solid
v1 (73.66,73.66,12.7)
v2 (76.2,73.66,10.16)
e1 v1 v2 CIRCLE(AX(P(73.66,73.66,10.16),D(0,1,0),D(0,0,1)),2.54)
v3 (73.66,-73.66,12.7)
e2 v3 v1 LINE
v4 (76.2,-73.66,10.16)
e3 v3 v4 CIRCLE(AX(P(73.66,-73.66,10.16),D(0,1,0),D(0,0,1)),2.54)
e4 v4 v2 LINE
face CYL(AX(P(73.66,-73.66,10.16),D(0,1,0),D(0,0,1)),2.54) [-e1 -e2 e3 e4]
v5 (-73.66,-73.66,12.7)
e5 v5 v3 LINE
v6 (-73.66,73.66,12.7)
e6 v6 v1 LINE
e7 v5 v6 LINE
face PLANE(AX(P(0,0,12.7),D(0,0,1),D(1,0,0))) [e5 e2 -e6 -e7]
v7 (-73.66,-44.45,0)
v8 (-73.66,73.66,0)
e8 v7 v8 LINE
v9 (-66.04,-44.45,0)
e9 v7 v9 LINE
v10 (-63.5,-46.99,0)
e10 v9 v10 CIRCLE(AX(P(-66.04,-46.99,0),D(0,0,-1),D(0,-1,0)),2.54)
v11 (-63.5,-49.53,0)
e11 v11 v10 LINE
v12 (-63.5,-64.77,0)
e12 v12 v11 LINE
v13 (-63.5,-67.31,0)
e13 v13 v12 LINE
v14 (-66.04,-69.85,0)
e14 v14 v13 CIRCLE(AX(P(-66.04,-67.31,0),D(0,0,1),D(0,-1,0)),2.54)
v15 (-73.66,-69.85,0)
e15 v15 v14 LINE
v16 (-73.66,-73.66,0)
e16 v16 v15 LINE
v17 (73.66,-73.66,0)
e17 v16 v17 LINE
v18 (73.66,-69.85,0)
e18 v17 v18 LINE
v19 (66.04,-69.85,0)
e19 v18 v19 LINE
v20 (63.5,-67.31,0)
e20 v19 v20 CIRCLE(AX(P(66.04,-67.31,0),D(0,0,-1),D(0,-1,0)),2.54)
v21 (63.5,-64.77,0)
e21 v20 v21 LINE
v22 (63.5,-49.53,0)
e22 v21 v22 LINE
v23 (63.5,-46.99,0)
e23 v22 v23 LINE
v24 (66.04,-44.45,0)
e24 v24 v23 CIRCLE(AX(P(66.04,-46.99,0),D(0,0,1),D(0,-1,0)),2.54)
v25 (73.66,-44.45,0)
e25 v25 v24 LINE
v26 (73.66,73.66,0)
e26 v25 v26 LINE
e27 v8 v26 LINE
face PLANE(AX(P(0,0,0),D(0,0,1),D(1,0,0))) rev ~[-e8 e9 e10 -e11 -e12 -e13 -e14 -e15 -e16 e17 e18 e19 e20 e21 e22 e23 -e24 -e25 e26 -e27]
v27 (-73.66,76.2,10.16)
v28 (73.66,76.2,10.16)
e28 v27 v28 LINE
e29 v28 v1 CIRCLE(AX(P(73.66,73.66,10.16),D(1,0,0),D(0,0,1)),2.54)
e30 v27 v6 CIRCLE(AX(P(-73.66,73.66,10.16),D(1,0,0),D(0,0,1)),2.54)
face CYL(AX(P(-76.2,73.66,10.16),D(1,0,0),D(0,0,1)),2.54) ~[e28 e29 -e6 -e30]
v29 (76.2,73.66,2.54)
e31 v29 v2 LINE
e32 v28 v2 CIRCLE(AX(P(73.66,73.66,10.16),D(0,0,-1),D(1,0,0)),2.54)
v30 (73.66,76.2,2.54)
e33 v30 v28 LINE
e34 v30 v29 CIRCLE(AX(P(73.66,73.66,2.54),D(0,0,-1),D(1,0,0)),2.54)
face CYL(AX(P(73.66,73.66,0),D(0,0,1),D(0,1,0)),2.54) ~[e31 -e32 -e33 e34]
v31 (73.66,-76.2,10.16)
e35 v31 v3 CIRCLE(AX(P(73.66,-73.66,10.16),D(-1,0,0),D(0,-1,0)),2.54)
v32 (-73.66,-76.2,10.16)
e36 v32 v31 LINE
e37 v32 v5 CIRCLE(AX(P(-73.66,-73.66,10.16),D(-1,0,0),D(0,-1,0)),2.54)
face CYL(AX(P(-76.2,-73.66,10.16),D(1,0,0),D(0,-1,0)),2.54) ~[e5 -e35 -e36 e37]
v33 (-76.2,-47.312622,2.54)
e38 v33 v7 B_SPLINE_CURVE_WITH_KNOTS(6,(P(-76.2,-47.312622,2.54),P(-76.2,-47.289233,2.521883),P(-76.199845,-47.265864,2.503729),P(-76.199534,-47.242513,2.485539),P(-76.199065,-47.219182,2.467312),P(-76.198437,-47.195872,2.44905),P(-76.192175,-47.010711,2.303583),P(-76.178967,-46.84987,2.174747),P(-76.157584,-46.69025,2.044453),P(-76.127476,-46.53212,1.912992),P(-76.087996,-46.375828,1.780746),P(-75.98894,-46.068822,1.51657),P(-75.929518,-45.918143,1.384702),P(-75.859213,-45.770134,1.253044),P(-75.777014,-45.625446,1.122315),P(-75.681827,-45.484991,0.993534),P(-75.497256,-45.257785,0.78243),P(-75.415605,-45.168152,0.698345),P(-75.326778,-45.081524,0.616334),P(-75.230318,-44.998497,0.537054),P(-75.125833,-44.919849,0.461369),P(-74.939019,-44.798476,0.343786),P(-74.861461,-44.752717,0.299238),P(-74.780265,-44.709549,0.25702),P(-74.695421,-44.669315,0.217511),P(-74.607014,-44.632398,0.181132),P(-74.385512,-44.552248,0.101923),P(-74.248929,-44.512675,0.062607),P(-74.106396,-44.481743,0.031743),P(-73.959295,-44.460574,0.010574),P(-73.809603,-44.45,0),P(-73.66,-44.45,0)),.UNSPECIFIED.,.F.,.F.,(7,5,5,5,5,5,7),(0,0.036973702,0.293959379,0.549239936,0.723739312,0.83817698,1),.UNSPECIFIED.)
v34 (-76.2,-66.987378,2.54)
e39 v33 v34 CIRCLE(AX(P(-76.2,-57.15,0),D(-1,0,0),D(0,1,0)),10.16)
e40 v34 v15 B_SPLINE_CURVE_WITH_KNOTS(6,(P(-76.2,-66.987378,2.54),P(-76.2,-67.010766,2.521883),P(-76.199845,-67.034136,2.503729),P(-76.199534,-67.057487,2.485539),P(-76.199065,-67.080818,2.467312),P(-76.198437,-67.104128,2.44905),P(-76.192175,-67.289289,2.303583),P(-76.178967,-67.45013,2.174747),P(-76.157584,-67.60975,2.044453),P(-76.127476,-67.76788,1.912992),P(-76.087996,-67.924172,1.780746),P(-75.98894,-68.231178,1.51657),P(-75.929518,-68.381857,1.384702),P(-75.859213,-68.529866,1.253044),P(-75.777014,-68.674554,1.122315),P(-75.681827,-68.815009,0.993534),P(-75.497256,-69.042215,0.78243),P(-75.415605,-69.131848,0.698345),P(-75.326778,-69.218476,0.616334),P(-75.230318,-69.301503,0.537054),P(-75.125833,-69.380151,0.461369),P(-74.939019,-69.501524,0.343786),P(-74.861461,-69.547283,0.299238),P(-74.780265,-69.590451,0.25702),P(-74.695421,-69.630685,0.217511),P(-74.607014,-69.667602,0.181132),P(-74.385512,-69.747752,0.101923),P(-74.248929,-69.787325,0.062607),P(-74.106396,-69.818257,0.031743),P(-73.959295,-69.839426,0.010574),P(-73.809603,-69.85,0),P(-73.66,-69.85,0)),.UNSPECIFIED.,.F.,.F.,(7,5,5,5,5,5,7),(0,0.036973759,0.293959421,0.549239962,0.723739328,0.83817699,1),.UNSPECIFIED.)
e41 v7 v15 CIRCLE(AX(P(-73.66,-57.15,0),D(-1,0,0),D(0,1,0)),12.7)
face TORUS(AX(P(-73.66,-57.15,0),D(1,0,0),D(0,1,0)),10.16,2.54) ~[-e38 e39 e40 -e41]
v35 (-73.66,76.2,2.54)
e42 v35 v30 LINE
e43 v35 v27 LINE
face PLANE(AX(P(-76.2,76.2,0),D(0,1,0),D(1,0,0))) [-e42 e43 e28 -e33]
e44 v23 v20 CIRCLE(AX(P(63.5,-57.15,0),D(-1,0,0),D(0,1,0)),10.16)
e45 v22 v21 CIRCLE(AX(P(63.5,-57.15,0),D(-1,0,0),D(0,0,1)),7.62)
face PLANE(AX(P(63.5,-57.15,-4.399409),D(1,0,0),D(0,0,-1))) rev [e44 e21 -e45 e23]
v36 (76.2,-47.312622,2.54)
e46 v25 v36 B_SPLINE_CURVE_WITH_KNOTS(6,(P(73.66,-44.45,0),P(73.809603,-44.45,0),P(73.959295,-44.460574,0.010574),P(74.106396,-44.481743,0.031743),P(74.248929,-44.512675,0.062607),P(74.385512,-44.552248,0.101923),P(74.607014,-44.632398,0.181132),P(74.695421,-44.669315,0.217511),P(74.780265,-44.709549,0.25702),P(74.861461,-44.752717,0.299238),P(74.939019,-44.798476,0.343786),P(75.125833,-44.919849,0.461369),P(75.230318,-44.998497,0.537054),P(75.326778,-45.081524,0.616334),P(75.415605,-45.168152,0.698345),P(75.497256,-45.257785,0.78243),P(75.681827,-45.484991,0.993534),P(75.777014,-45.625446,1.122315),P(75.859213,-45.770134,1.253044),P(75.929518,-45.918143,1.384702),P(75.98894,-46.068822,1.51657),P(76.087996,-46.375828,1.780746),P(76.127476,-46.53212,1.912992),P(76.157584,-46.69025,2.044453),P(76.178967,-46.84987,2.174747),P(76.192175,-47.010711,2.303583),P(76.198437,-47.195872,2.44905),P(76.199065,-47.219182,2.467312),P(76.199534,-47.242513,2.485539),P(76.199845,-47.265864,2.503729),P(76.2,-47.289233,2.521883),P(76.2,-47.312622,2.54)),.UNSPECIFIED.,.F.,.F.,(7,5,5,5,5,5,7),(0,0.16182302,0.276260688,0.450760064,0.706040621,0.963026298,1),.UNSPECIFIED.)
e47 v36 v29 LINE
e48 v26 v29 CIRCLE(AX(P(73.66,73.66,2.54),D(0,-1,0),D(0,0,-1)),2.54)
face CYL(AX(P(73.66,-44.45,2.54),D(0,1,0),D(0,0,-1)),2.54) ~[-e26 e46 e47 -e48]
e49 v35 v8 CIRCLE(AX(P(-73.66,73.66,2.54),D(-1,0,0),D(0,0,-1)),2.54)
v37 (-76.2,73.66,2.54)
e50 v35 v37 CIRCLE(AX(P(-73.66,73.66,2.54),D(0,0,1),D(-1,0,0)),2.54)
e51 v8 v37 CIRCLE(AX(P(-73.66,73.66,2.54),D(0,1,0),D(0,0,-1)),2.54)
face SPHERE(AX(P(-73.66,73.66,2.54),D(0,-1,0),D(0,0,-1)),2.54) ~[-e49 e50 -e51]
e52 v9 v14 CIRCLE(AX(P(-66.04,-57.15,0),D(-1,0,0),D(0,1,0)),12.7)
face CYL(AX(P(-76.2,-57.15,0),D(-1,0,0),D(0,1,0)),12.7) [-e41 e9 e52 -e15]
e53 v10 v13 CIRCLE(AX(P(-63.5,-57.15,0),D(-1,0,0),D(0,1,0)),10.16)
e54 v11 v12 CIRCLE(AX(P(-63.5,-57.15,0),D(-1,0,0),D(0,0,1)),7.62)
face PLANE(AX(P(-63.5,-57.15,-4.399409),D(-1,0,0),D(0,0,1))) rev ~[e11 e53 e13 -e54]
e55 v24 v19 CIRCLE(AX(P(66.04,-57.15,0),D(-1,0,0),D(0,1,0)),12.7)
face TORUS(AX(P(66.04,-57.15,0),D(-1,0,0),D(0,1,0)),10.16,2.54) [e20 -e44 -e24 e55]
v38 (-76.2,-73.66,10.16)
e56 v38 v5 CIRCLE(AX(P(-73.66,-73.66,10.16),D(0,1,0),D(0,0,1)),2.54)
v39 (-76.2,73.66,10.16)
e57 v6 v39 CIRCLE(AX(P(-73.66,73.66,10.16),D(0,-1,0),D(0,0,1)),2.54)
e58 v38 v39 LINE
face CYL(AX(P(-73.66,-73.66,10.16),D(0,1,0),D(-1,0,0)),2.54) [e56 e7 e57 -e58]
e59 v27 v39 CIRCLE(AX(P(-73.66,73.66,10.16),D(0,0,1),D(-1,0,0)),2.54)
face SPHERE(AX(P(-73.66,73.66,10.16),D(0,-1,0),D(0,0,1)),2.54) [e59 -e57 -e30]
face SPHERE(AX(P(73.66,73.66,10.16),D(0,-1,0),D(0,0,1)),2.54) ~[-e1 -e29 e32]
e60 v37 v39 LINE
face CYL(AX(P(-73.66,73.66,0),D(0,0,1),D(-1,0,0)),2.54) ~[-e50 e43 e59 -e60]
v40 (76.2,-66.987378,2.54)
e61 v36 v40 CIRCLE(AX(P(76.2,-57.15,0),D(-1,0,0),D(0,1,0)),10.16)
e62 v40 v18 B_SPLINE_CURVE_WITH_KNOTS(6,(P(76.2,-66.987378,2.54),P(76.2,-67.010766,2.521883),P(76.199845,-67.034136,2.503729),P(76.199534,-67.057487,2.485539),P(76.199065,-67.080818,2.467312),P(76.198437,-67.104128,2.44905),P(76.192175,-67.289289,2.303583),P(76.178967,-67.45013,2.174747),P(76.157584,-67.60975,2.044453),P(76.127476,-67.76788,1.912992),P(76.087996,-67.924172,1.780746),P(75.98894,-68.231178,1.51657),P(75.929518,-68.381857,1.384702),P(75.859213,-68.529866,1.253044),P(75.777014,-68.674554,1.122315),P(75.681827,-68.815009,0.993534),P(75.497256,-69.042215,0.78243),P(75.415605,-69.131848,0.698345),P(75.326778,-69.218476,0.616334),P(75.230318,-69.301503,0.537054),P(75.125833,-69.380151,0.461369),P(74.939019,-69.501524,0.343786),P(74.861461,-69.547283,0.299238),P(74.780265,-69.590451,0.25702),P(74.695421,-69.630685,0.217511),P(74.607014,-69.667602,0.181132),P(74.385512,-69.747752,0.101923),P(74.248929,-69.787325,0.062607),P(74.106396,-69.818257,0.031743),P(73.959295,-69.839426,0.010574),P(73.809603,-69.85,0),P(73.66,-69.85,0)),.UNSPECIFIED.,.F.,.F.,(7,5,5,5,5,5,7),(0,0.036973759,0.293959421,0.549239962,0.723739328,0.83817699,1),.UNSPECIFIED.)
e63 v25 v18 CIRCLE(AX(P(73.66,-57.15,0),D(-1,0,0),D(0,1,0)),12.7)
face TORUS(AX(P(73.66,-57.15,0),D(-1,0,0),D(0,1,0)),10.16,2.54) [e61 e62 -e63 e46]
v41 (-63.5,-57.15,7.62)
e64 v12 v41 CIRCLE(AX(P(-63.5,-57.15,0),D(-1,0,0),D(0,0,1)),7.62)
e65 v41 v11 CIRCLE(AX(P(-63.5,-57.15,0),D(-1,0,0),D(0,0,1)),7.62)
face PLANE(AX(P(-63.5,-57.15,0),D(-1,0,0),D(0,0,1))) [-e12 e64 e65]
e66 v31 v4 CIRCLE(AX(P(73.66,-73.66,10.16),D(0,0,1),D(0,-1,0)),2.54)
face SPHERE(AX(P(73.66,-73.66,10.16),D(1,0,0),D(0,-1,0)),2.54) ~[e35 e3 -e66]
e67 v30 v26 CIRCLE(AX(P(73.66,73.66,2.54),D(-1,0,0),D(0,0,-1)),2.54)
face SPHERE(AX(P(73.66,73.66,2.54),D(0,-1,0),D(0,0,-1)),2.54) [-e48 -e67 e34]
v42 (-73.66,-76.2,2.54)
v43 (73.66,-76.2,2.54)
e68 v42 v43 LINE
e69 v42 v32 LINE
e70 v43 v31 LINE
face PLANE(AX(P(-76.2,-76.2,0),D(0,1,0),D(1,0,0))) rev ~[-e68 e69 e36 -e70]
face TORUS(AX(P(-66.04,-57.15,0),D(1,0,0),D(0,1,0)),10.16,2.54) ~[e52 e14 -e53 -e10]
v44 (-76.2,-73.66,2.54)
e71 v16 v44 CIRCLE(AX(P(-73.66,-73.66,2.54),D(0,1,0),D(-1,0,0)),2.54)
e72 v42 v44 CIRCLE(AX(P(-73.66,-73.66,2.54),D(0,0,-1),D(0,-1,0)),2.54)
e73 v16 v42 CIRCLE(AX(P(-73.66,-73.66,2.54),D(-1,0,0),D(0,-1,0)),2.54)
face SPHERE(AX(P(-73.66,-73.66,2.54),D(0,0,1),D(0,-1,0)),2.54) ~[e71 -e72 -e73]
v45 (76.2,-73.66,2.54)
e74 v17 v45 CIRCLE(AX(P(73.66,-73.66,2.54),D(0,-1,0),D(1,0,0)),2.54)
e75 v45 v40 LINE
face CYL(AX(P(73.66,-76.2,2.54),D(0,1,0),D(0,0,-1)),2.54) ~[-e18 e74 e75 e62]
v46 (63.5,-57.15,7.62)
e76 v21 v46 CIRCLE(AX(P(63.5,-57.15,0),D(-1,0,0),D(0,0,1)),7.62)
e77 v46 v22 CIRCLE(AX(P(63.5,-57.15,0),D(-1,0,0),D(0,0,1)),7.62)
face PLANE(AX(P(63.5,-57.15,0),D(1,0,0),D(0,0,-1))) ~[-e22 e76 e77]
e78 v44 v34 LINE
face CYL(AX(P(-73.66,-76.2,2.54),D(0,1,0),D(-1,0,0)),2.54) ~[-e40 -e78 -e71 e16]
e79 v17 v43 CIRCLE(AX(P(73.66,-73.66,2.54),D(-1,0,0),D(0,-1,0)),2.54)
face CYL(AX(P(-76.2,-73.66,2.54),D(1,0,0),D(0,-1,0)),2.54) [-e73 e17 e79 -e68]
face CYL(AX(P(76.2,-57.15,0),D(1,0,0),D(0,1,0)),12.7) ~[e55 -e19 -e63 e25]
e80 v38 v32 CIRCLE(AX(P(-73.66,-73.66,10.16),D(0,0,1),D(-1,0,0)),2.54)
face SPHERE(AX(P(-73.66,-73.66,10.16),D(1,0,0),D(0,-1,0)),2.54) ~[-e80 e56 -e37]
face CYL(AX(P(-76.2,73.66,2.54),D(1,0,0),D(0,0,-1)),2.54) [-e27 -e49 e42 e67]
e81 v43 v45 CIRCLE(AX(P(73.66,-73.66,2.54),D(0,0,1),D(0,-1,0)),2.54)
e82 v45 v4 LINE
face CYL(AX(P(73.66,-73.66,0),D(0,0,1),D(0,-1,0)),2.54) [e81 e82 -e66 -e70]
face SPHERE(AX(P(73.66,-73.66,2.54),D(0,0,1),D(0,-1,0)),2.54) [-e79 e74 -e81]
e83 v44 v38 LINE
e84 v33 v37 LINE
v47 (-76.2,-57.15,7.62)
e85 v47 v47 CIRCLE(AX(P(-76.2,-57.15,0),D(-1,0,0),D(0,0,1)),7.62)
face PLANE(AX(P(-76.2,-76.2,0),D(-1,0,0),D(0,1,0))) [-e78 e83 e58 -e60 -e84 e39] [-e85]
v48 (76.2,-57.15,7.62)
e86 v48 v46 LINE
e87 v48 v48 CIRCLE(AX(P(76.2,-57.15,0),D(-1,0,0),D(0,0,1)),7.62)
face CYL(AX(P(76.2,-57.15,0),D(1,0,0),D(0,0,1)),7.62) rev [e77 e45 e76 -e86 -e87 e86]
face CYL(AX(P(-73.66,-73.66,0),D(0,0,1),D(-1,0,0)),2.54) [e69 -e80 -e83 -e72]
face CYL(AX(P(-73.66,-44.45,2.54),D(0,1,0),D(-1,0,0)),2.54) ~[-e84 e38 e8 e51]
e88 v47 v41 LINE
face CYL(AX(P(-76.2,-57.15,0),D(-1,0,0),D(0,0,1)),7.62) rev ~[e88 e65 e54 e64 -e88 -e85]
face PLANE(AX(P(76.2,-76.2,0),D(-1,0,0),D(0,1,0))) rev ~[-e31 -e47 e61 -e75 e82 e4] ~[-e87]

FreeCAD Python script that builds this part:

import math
import FreeCAD as App
import Part
import Sketcher
Q = App.Units.Quantity


def edges_at(feature, points):
    """Names of the edges that pass closest to the given points."""
    edges = feature.Shape.Edges
    near = lambda p: min(range(len(edges)), key=lambda i: edges[i].distToShape(Part.Vertex(*p))[0])
    return sorted({f"Edge{near(p) + 1}" for p in points})


def add_polygon(sketch, points):
    """Adds a closed chain of lines whose ends are joined by coincident constraints."""
    first, n = sketch.GeometryCount, len(points)
    for a, b in zip(points, points[1:] + points[:1]):
        sketch.addGeometry(Part.LineSegment(App.Vector(*a, 0), App.Vector(*b, 0)), False)
    for i in range(n):
        sketch.addConstraint(Sketcher.Constraint("Coincident", first + i, 2, first + (i + 1) % n, 1))

doc = App.newDocument("Part")
body = doc.addObject("PartDesign::Body", "Body")

sketch1 = body.newObject("Sketcher::SketchObject", "Sketch")
sketch1.AttachmentSupport = (doc.getObject("XY_Plane"), [""])
sketch1.MapMode = "FlatFace"
add_polygon(sketch1, [(-76, 76), (-76, -76), (76, -76), (76, 76)])
sketch1.addConstraint(Sketcher.Constraint("Vertical", 0))
sketch1.addConstraint(Sketcher.Constraint("Horizontal", 1))
sketch1.addConstraint(Sketcher.Constraint("Vertical", 2))
sketch1.addConstraint(Sketcher.Constraint("Horizontal", 3))
sketch1.addConstraint(Sketcher.Constraint("Symmetric", 0, 2, 2, 2, -1, 1))
sketch1.addConstraint(Sketcher.Constraint("Equal", 3, 0))
sketch1.addConstraint(Sketcher.Constraint("DistanceX", 1, 1, 1, 2, Q("6 in")))
pad1 = body.newObject("PartDesign::Pad", "Pad")
pad1.Profile = sketch1
pad1.Length = Q("0.5 in")

sketch2 = body.newObject("Sketcher::SketchObject", "Sketch001")
sketch2.AttachmentSupport = (doc.getObject("YZ_Plane"), [""])
sketch2.MapMode = "FlatFace"
sketch2.AttachmentOffset = App.Placement(App.Vector(0, 0, -3 * 25.4), App.Rotation())
sketch2.addGeometry(Part.LineSegment(App.Vector(-70, 0, 0), App.Vector(-44, 0, 0)), False)
sketch2.addGeometry(Part.ArcOfCircle(Part.Circle(App.Vector(-57, 0, 0), App.Vector(0, 0, 1), 13), math.radians(180), math.radians(360)), False)
sketch2.addConstraint(Sketcher.Constraint("Coincident", 0, 1, 1, 1))
sketch2.addConstraint(Sketcher.Constraint("Coincident", 1, 2, 0, 2))
sketch2.addConstraint(Sketcher.Constraint("Horizontal", 0))
sketch2.addConstraint(Sketcher.Constraint("PointOnObject", 1, 3, -1))
sketch2.addConstraint(Sketcher.Constraint("PointOnObject", 0, 1, -1))
sketch2.addConstraint(Sketcher.Constraint("Radius", 1, Q("0.5 in")))
sketch2.addConstraint(Sketcher.Constraint("DistanceX", 1, 3, -1, 1, Q("2.25 in")))
pad2 = body.newObject("PartDesign::Pad", "Pad001")
pad2.Profile = sketch2
pad2.Length = Q("0.5 in")

sketch3 = body.newObject("Sketcher::SketchObject", "Sketch002")
sketch3.AttachmentSupport = (doc.getObject("YZ_Plane"), [""])
sketch3.MapMode = "FlatFace"
sketch3.AttachmentOffset = App.Placement(App.Vector(0, 0, -3 * 25.4), App.Rotation())
sketch3.addGeometry(Part.Circle(App.Vector(-57, 0, 0), App.Vector(0, 0, 1), 8), False)
sketch3.addConstraint(Sketcher.Constraint("PointOnObject", 0, 3, -1))
sketch3.addConstraint(Sketcher.Constraint("Diameter", 0, Q("0.6 in")))
sketch3.addConstraint(Sketcher.Constraint("DistanceX", 0, 3, -1, 1, Q("2.25 in")))
pocket1 = body.newObject("PartDesign::Pocket", "Pocket")
pocket1.Profile = sketch3
pocket1.Length = Q("0.5 in")
pocket1.Reversed = True
doc.recompute()

mirrored = body.newObject("PartDesign::Mirrored", "Mirrored")
mirrored.Originals = [pad2, pocket1]
mirrored.MirrorPlane = (doc.getObject("YZ_Plane"), [""])
body.Tip = mirrored
doc.recompute()

fillet = body.newObject("PartDesign::Fillet", "Fillet")
fillet.Base = (mirrored, edges_at(mirrored, [(0, -76.2, 12.7)]))
fillet.Radius = Q("0.1 in")
doc.recompute()

fillet2 = body.newObject("PartDesign::Fillet", "Fillet001")
fillet2.Base = (fillet, edges_at(fillet, [
    (-76.2, 15.875, 0),
    (-76.2, -57.15, -12.7),
    (-63.5, -57.15, -12.7),
    (76.2, 15.875, 0),
    (63.5, -57.15, -12.7),
    (76.2, -57.15, -12.7),
    (-76.2, 1.27, 12.7),
    (76.2, 1.27, 12.7),
    (76.2, -76.2, 5.08),
    (76.2, -75.456, 11.956),
    (0, -76.2, 0),
    (-76.2, -76.2, 5.08),
    (-76.2, -75.456, 11.956),
    (76.2, -73.025, 0),
    (0, 76.2, 0),
    (-76.2, -73.025, 0),
    (0, 76.2, 12.7),
    (76.2, 76.2, 6.35),
    (-76.2, 76.2, 6.35),
]))
fillet2.Radius = Q("0.1 in")

doc.recompute()
